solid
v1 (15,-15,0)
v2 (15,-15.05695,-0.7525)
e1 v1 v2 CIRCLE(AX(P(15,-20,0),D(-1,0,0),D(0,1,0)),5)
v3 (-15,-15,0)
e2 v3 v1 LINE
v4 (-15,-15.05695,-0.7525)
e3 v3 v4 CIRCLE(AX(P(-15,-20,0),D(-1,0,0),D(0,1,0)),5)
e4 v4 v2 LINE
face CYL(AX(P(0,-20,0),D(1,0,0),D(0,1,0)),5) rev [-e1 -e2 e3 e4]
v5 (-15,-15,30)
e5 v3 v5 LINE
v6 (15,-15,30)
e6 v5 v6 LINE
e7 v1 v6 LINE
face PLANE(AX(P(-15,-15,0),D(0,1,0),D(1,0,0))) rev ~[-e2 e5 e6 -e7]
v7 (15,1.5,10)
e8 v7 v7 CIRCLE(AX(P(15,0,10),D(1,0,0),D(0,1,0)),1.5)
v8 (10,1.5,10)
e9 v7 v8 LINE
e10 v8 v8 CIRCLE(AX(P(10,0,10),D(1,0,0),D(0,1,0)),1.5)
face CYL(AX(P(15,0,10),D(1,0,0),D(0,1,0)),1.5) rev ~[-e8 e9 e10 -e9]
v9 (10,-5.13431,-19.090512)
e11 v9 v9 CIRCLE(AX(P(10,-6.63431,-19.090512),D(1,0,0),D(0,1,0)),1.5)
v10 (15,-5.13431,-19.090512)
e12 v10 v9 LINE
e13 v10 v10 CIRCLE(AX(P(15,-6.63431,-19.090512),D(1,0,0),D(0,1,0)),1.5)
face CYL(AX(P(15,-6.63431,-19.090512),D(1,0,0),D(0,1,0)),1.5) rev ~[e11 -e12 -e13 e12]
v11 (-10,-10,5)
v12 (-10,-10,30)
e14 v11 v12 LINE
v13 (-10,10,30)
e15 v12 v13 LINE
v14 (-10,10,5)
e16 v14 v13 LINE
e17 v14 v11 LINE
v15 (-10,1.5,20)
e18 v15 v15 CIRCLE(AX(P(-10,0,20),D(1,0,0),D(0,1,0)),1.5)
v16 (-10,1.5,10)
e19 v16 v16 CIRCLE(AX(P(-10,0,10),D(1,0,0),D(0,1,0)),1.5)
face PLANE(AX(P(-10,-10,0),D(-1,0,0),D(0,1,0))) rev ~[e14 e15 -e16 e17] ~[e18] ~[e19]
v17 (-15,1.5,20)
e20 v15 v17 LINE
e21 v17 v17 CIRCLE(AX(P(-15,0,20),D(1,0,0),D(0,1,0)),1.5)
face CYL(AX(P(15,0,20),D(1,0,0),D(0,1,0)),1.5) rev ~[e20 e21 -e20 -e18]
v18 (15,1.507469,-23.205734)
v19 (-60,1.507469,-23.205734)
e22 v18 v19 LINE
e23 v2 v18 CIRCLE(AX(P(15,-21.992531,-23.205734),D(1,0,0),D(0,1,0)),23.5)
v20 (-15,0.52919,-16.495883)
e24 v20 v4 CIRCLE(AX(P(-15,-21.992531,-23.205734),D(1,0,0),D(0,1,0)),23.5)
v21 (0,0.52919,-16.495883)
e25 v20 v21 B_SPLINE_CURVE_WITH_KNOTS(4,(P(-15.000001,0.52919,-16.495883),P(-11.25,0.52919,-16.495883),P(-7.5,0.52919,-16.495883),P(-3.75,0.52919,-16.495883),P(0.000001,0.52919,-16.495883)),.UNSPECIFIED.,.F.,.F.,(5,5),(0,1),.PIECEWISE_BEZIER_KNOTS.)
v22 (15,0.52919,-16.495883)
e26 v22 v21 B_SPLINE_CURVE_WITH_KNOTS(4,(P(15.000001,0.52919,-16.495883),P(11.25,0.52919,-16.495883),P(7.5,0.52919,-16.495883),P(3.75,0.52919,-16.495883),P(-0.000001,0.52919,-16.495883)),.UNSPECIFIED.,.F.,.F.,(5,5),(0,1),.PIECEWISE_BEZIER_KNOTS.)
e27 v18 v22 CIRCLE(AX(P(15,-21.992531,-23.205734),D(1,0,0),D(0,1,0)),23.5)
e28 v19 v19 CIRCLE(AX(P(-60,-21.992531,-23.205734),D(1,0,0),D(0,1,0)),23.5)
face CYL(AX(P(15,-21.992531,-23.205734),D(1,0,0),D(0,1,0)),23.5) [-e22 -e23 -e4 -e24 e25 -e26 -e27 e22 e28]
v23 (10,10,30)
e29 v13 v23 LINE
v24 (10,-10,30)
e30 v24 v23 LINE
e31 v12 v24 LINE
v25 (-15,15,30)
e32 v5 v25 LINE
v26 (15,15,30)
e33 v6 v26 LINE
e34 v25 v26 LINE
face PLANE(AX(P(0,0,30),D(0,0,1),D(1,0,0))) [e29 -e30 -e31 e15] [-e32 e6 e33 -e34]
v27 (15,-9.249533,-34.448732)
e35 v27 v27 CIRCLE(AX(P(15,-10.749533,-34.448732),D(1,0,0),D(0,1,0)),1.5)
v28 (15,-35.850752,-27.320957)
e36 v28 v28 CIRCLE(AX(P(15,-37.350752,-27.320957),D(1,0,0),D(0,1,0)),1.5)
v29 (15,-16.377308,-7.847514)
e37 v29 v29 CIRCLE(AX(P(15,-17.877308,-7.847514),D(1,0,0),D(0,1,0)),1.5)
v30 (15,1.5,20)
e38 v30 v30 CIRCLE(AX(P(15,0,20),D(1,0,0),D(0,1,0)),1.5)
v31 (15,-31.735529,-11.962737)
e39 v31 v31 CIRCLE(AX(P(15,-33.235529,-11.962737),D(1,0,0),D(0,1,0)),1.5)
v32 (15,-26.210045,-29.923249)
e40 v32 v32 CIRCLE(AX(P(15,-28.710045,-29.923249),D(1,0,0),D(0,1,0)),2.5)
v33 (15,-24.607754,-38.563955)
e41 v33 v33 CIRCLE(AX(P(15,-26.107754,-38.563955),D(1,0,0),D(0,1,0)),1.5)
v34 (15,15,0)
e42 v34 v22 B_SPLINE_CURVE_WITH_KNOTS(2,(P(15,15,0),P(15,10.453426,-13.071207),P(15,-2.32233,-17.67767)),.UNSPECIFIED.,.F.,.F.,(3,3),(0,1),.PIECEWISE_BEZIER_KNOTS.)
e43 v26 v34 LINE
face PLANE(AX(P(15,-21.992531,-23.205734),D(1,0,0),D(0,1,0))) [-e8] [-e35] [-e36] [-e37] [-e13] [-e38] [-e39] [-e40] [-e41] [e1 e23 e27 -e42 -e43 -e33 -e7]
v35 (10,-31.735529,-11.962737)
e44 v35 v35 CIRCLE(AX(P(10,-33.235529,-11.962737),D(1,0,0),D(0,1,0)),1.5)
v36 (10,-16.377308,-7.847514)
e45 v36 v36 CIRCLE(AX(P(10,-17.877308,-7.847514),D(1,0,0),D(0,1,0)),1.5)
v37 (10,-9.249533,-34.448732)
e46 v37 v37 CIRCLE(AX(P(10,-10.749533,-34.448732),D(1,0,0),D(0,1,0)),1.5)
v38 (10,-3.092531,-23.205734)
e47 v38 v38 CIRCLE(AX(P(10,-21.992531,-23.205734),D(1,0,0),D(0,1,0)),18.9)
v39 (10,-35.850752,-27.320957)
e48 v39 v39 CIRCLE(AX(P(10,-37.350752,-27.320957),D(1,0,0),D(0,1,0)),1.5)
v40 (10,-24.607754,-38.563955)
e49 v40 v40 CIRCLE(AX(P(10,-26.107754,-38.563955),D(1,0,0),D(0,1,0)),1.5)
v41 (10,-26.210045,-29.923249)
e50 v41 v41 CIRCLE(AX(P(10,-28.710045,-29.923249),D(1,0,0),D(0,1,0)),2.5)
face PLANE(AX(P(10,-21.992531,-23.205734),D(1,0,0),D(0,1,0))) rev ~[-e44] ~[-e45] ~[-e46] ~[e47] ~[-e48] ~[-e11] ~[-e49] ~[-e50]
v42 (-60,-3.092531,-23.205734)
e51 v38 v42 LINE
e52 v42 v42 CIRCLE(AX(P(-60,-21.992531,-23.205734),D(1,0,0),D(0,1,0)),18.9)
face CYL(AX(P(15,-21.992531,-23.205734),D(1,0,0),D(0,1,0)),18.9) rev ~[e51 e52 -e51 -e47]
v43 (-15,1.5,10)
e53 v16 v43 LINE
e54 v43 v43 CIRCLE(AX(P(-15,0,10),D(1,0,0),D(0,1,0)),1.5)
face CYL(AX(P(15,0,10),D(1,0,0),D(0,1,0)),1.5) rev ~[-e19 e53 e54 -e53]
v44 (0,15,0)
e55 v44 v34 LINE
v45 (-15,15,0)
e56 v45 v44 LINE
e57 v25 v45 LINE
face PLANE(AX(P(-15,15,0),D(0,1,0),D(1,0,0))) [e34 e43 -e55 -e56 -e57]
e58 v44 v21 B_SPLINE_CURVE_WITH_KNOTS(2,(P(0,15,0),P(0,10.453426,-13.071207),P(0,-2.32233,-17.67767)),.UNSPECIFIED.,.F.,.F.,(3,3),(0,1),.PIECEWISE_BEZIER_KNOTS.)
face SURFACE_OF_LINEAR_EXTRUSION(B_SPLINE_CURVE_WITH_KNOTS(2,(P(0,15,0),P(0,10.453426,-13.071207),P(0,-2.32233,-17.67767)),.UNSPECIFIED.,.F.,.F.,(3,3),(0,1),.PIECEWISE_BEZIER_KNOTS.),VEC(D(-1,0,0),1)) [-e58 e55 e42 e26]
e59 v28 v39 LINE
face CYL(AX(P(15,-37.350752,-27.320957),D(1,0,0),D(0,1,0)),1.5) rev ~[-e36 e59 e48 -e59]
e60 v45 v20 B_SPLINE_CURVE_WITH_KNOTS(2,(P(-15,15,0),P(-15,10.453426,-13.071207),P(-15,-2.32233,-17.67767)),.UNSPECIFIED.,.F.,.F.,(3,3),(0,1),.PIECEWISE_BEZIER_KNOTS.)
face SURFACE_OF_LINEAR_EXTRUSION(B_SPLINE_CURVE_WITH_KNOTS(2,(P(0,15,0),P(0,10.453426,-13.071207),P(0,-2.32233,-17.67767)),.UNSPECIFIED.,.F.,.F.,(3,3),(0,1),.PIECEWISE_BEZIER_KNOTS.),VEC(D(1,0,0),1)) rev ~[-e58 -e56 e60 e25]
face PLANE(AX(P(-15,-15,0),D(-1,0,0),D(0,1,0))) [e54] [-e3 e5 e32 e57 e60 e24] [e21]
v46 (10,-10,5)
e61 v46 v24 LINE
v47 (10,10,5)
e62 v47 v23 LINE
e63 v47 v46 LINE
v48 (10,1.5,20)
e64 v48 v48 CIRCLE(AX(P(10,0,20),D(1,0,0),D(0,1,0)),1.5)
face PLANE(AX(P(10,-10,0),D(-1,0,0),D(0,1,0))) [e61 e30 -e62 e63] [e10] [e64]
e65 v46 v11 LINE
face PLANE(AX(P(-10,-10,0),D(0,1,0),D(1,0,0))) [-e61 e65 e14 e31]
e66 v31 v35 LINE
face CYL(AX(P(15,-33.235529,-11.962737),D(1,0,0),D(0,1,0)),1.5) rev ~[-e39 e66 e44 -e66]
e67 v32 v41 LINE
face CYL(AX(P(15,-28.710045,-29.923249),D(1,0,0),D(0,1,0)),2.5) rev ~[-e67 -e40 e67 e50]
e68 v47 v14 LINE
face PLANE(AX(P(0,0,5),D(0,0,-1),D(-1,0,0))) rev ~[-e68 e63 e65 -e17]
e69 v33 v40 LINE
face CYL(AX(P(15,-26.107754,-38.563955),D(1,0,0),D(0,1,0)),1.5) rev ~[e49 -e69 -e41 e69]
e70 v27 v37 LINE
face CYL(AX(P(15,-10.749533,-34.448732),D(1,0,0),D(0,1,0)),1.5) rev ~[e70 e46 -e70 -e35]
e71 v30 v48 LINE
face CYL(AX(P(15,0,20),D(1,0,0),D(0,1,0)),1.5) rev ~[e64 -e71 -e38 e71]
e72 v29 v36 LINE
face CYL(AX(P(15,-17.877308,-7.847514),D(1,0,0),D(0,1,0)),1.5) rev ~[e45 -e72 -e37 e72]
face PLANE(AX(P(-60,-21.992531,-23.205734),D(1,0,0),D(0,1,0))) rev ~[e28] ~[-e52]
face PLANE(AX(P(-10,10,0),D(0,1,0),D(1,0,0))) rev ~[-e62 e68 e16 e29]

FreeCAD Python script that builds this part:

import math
import FreeCAD as App
import Part
import Sketcher
Q = App.Units.Quantity

doc = App.newDocument("Part")
body = doc.addObject("PartDesign::Body", "Body")

sketch1 = body.newObject("Sketcher::SketchObject", "Sketch")
sketch1.AttachmentSupport = (doc.getObject("XY_Plane"), [""])
sketch1.MapMode = "FlatFace"
sketch1.addGeometry(Part.LineSegment(App.Vector(-15, 15, 0), App.Vector(-15, -15, 0)), False)
sketch1.addGeometry(Part.LineSegment(App.Vector(-15, -15, 0), App.Vector(15, -15, 0)), False)
sketch1.addGeometry(Part.LineSegment(App.Vector(15, -15, 0), App.Vector(15, 15, 0)), False)
sketch1.addGeometry(Part.LineSegment(App.Vector(15, 15, 0), App.Vector(-15, 15, 0)), False)
sketch1.addGeometry(Part.LineSegment(App.Vector(10, -10, 0), App.Vector(-10, -10, 0)), False)
sketch1.addGeometry(Part.LineSegment(App.Vector(-10, -10, 0), App.Vector(-10, 10, 0)), False)
sketch1.addGeometry(Part.LineSegment(App.Vector(-10, 10, 0), App.Vector(10, 10, 0)), False)
sketch1.addGeometry(Part.LineSegment(App.Vector(10, 10, 0), App.Vector(10, -10, 0)), False)
sketch1.addConstraint(Sketcher.Constraint("Coincident", 0, 2, 1, 1))
sketch1.addConstraint(Sketcher.Constraint("Coincident", 1, 2, 2, 1))
sketch1.addConstraint(Sketcher.Constraint("Coincident", 2, 2, 3, 1))
sketch1.addConstraint(Sketcher.Constraint("Coincident", 3, 2, 0, 1))
sketch1.addConstraint(Sketcher.Constraint("Coincident", 4, 2, 5, 1))
sketch1.addConstraint(Sketcher.Constraint("Coincident", 5, 2, 6, 1))
sketch1.addConstraint(Sketcher.Constraint("Coincident", 6, 2, 7, 1))
sketch1.addConstraint(Sketcher.Constraint("Coincident", 7, 2, 4, 1))
sketch1.addConstraint(Sketcher.Constraint("Vertical", 0))
sketch1.addConstraint(Sketcher.Constraint("Horizontal", 1))
sketch1.addConstraint(Sketcher.Constraint("Vertical", 2))
sketch1.addConstraint(Sketcher.Constraint("Horizontal", 3))
sketch1.addConstraint(Sketcher.Constraint("Horizontal", 4))
sketch1.addConstraint(Sketcher.Constraint("Vertical", 5))
sketch1.addConstraint(Sketcher.Constraint("Horizontal", 6))
sketch1.addConstraint(Sketcher.Constraint("Vertical", 7))
sketch1.addConstraint(Sketcher.Constraint("Symmetric", 0, 2, 2, 2, -1, 1))
sketch1.addConstraint(Sketcher.Constraint("Symmetric", 4, 2, 6, 2, -1, 1))
sketch1.addConstraint(Sketcher.Constraint("Equal", 3, 0))
sketch1.addConstraint(Sketcher.Constraint("Equal", 6, 5))
sketch1.addConstraint(Sketcher.Constraint("DistanceX", 1, 1, 1, 2, Q("30 mm")))
sketch1.addConstraint(Sketcher.Constraint("DistanceX", 4, 2, 4, 1, Q("20 mm")))
pad1 = body.newObject("PartDesign::Pad", "Pad")
pad1.Profile = sketch1
pad1.Length = 30

sketch2 = body.newObject("Sketcher::SketchObject", "Sketch001")
sketch2.AttachmentSupport = (doc.getObject("YZ_Plane"), [""])
sketch2.MapMode = "FlatFace"
sketch2.AttachmentOffset = App.Placement(App.Vector(0, 0, 15), App.Rotation())
sketch2.addGeometry(Part.Circle(App.Vector(0, 10, 0), App.Vector(0, 0, 1), 1.5), False)
sketch2.addGeometry(Part.Circle(App.Vector(0, 20, 0), App.Vector(0, 0, 1), 1.5), False)
sketch2.addConstraint(Sketcher.Constraint("Equal", 0, 1))
sketch2.addConstraint(Sketcher.Constraint("PointOnObject", 0, 3, -2))
sketch2.addConstraint(Sketcher.Constraint("PointOnObject", 1, 3, -2))
sketch2.addConstraint(Sketcher.Constraint("Diameter", 0, Q("3 mm")))
sketch2.addConstraint(Sketcher.Constraint("DistanceY", -1, 1, 0, 3, Q("10 mm")))
sketch2.addConstraint(Sketcher.Constraint("DistanceY", -1, 1, 1, 3, Q("20 mm")))
pocket1 = body.newObject("PartDesign::Pocket", "Pocket")
pocket1.Profile = sketch2
pocket1.Type = "ThroughAll"

sketch3 = body.newObject("Sketcher::SketchObject", "Sketch002")
sketch3.AttachmentSupport = (doc.getObject("XY_Plane"), [""])
sketch3.MapMode = "FlatFace"
sketch3.addGeometry(Part.LineSegment(App.Vector(15, 15, 0), App.Vector(15, -15, 0)), False)
sketch3.addGeometry(Part.LineSegment(App.Vector(15, -15, 0), App.Vector(-15, -15, 0)), False)
sketch3.addGeometry(Part.LineSegment(App.Vector(-15, -15, 0), App.Vector(-15, 15, 0)), False)
sketch3.addGeometry(Part.LineSegment(App.Vector(-15, 15, 0), App.Vector(15, 15, 0)), False)
sketch3.addConstraint(Sketcher.Constraint("Coincident", 0, 2, 1, 1))
sketch3.addConstraint(Sketcher.Constraint("Coincident", 1, 2, 2, 1))
sketch3.addConstraint(Sketcher.Constraint("Coincident", 2, 2, 3, 1))
sketch3.addConstraint(Sketcher.Constraint("Coincident", 3, 2, 0, 1))
sketch3.addConstraint(Sketcher.Constraint("Vertical", 0))
sketch3.addConstraint(Sketcher.Constraint("Horizontal", 1))
sketch3.addConstraint(Sketcher.Constraint("Vertical", 2))
sketch3.addConstraint(Sketcher.Constraint("Horizontal", 3))
sketch3.addConstraint(Sketcher.Constraint("Symmetric", 0, 2, 2, 2, -1, 1))
sketch3.addConstraint(Sketcher.Constraint("Equal", 3, 0))
sketch3.addConstraint(Sketcher.Constraint("DistanceX", 1, 2, 1, 1, Q("30 mm")))
pad2 = body.newObject("PartDesign::Pad", "Pad001")
pad2.Profile = sketch3
pad2.Length = 5

sketch4 = body.newObject("Sketcher::SketchObject", "Sketch003")
sketch4.AttachmentSupport = (doc.getObject("YZ_Plane"), [""])
sketch4.MapMode = "FlatFace"
sketch4.addGeometry(Part.LineSegment(App.Vector(15, 0, 0), App.Vector(-15, 0, 0)), False)
sketch4.addGeometry(Part.ArcOfCircle(Part.Circle(App.Vector(-20, 0, 0), App.Vector(0, 0, 1), 5), math.radians(-45), math.radians(0)), False)
sketch4.addGeometry(Part.LineSegment(App.Vector(-16.464466, -3.535534, 0), App.Vector(-35.781113, -22.852181, 0)), False)
sketch4.addGeometry(Part.LineSegment(App.Vector(-35.781113, -22.852181, 0), App.Vector(-21.638978, -36.994317, 0)), False)
sketch4.addGeometry(Part.LineSegment(App.Vector(-21.638978, -36.994317, 0), App.Vector(-2.32233, -17.67767, 0)), False)
sketch4.addGeometry(Part.BSplineCurve([App.Vector(15, 0, 0), App.Vector(10.453426, -13.071207, 0), App.Vector(-2.32233, -17.67767, 0)], [3, 3], [0, 1], False, 2, [1, 1, 1], False), False)
sketch4.addConstraint(Sketcher.Constraint("Block", 5))
sketch4.addConstraint(Sketcher.Constraint("Coincident", 0, 2, 1, 2))
sketch4.addConstraint(Sketcher.Constraint("Tangent", 1, 1, 2, 1))
sketch4.addConstraint(Sketcher.Constraint("Coincident", 2, 2, 3, 1))
sketch4.addConstraint(Sketcher.Constraint("Coincident", 3, 2, 4, 1))
sketch4.addConstraint(Sketcher.Constraint("Coincident", 4, 2, 5, 2))
sketch4.addConstraint(Sketcher.Constraint("Coincident", 5, 1, 0, 1))
sketch4.addConstraint(Sketcher.Constraint("Horizontal", 0))
sketch4.addConstraint(Sketcher.Constraint("PointOnObject", 1, 3, -1))
sketch4.addConstraint(Sketcher.Constraint("Perpendicular", 2, 3))
sketch4.addConstraint(Sketcher.Constraint("Perpendicular", 3, 4))
sketch4.addConstraint(Sketcher.Constraint("Equal", 2, 4))
sketch4.addConstraint(Sketcher.Constraint("Radius", 1, Q("5 mm")))
sketch4.addConstraint(Sketcher.Constraint("DistanceX", 0, 2, 0, 1, Q("30 mm")))
sketch4.addConstraint(Sketcher.Constraint("DistanceY", 2, 2, -1, 1, Q("22.852181 mm")))
pad3 = body.newObject("PartDesign::Pad", "Pad002")
pad3.Profile = sketch4
pad3.Length = 30
pad3.Midplane = True

sketch5 = body.newObject("Sketcher::SketchObject", "Sketch004")
sketch5.AttachmentSupport = (doc.getObject("YZ_Plane"), [""])
sketch5.MapMode = "FlatFace"
sketch5.AttachmentOffset = App.Placement(App.Vector(0, 0, 15), App.Rotation())
sketch5.addGeometry(Part.Circle(App.Vector(-22, -23, 0), App.Vector(0, 0, 1), 24), False)
sketch5.addConstraint(Sketcher.Constraint("Diameter", 0, Q("47 mm")))
sketch5.addConstraint(Sketcher.Constraint("DistanceX", 0, 3, -1, 1, Q("21.992531 mm")))
sketch5.addConstraint(Sketcher.Constraint("DistanceY", 0, 3, -1, 1, Q("23.205734 mm")))
pad4 = body.newObject("PartDesign::Pad", "Pad003")
pad4.Profile = sketch5
pad4.Length = 75
pad4.Reversed = True

sketch6 = body.newObject("Sketcher::SketchObject", "Sketch005")
sketch6.AttachmentSupport = (doc.getObject("YZ_Plane"), [""])
sketch6.MapMode = "FlatFace"
sketch6.AttachmentOffset = App.Placement(App.Vector(0, 0, 15), App.Rotation())
sketch6.addGeometry(Part.Circle(App.Vector(-22, -23, 0), App.Vector(0, 0, 1), 19), False)
sketch6.addConstraint(Sketcher.Constraint("Diameter", 0, Q("37.8 mm")))
sketch6.addConstraint(Sketcher.Constraint("DistanceX", 0, 3, -1, 1, Q("21.992531 mm")))
sketch6.addConstraint(Sketcher.Constraint("DistanceY", 0, 3, -1, 1, Q("23.205734 mm")))
pocket2 = body.newObject("PartDesign::Pocket", "Pocket001")
pocket2.Profile = sketch6
pocket2.Type = "ThroughAll"

sketch7 = body.newObject("Sketcher::SketchObject", "Sketch006")
sketch7.AttachmentSupport = (doc.getObject("YZ_Plane"), [""])
sketch7.MapMode = "FlatFace"
sketch7.AttachmentOffset = App.Placement(App.Vector(0, 0, 15), App.Rotation())
sketch7.addGeometry(Part.Circle(App.Vector(-22, -23, 0), App.Vector(0, 0, 1), 19), False)
sketch7.addConstraint(Sketcher.Constraint("Diameter", 0, Q("37.8 mm")))
sketch7.addConstraint(Sketcher.Constraint("DistanceX", 0, 3, -1, 1, Q("21.992531 mm")))
sketch7.addConstraint(Sketcher.Constraint("DistanceY", 0, 3, -1, 1, Q("23.205734 mm")))
pad5 = body.newObject("PartDesign::Pad", "Pad004")
pad5.Profile = sketch7
pad5.Length = 5
pad5.Reversed = True

sketch8 = body.newObject("Sketcher::SketchObject", "Sketch007")
sketch8.AttachmentSupport = (doc.getObject("YZ_Plane"), [""])
sketch8.MapMode = "FlatFace"
sketch8.AttachmentOffset = App.Placement(App.Vector(0, 0, 15), App.Rotation())
sketch8.addGeometry(Part.Circle(App.Vector(-10.7, -34.4, 0), App.Vector(0, 0, 1), 1.5), False)
sketch8.addGeometry(Part.Circle(App.Vector(-26.1, -38.6, 0), App.Vector(0, 0, 1), 1.5), False)
sketch8.addGeometry(Part.Circle(App.Vector(-37.4, -27.3, 0), App.Vector(0, 0, 1), 1.5), False)
sketch8.addGeometry(Part.Circle(App.Vector(-33.2, -12, 0), App.Vector(0, 0, 1), 1.5), False)
sketch8.addGeometry(Part.Circle(App.Vector(-17.9, -7.8, 0), App.Vector(0, 0, 1), 1.5), False)
sketch8.addGeometry(Part.Circle(App.Vector(-6.6, -19.1, 0), App.Vector(0, 0, 1), 1.5), False)
sketch8.addGeometry(Part.Circle(App.Vector(-28.7, -29.9, 0), App.Vector(0, 0, 1), 2.5), False)
sketch8.addConstraint(Sketcher.Constraint("Equal", 0, 1))
sketch8.addConstraint(Sketcher.Constraint("Equal", 1, 2))
sketch8.addConstraint(Sketcher.Constraint("Equal", 2, 3))
sketch8.addConstraint(Sketcher.Constraint("Equal", 3, 4))
sketch8.addConstraint(Sketcher.Constraint("Equal", 4, 5))
sketch8.addConstraint(Sketcher.Constraint("Diameter", 0, Q("3 mm")))
sketch8.addConstraint(Sketcher.Constraint("Diameter", 6, Q("5 mm")))
sketch8.addConstraint(Sketcher.Constraint("DistanceX", 2, 3, -1, 1, Q("37.350752 mm")))
sketch8.addConstraint(Sketcher.Constraint("DistanceX", 3, 3, -1, 1, Q("33.235529 mm")))
sketch8.addConstraint(Sketcher.Constraint("DistanceX", 4, 3, -1, 1, Q("17.877308 mm")))
sketch8.addConstraint(Sketcher.Constraint("DistanceX", 5, 3, -1, 1, Q("6.63431 mm")))
sketch8.addConstraint(Sketcher.Constraint("DistanceY", 5, 3, -1, 1, Q("19.090512 mm")))
sketch8.addConstraint(Sketcher.Constraint("DistanceY", 6, 3, -1, 1, Q("29.923249 mm")))
sketch8.addConstraint(Sketcher.Constraint("DistanceX", 1, 3, 0, 3, Q("15.358221 mm")))
sketch8.addConstraint(Sketcher.Constraint("DistanceX", 2, 3, 0, 3, Q("26.601218 mm")))
sketch8.addConstraint(Sketcher.Constraint("DistanceY", 2, 3, 3, 3, Q("15.358221 mm")))
sketch8.addConstraint(Sketcher.Constraint("DistanceY", 1, 3, 3, 3, Q("26.601218 mm")))
sketch8.addConstraint(Sketcher.Constraint("DistanceY", 0, 3, 4, 3, Q("26.601218 mm")))
sketch8.addConstraint(Sketcher.Constraint("DistanceY", 1, 3, 4, 3, Q("30.716441 mm")))
sketch8.addConstraint(Sketcher.Constraint("DistanceY", 0, 3, 5, 3, Q("15.358221 mm")))
sketch8.addConstraint(Sketcher.Constraint("DistanceX", 6, 3, 1, 3, Q("2.602292 mm")))
pocket3 = body.newObject("PartDesign::Pocket", "Pocket002")
pocket3.Profile = sketch8
pocket3.Length = 8

doc.recompute()
